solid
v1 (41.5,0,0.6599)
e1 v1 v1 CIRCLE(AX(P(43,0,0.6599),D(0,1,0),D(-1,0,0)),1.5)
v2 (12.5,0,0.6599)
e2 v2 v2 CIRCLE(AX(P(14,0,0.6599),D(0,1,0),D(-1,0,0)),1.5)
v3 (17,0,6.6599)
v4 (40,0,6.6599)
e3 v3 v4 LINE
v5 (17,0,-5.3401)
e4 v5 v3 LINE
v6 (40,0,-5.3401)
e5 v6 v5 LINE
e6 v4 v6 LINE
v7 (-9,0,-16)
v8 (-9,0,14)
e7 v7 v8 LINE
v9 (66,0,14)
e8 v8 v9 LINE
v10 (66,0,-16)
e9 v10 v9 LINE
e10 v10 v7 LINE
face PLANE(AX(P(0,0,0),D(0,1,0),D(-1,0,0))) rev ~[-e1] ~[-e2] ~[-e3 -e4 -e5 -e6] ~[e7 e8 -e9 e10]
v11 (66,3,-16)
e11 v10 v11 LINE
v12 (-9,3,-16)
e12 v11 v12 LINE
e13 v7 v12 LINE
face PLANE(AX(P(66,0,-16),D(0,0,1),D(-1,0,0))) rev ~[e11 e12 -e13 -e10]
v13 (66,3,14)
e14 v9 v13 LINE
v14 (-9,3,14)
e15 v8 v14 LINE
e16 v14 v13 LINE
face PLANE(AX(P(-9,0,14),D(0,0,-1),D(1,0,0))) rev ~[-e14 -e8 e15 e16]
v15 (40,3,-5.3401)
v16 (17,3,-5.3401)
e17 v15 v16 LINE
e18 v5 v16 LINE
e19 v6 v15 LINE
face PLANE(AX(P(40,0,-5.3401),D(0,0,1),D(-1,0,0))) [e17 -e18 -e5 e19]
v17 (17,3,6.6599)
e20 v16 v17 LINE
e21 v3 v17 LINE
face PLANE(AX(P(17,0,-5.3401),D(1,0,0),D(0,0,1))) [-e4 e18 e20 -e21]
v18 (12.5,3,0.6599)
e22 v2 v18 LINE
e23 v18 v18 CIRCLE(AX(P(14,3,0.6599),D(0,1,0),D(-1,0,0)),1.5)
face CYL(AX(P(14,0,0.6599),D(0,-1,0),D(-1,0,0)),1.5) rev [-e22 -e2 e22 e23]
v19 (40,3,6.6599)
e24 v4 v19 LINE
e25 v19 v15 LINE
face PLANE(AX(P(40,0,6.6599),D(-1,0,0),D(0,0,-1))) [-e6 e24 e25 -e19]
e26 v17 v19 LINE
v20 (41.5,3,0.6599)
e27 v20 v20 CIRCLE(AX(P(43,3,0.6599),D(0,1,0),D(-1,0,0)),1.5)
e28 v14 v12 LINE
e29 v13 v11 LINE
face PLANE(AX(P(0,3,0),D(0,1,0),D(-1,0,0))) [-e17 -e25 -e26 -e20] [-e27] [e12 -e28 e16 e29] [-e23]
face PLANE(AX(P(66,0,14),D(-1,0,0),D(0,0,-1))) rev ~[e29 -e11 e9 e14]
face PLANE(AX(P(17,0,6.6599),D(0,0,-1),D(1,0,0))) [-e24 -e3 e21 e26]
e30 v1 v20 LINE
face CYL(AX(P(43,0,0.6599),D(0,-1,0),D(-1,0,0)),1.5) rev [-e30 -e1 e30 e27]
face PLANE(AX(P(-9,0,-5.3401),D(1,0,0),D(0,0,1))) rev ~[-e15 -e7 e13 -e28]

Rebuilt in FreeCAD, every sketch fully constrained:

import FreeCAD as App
import Part
import Sketcher

doc = App.newDocument("Part")
body = doc.addObject("PartDesign::Body", "Body")

sketch1 = doc.addObject("Sketcher::SketchObject", "Sketch")
body.addObject(sketch1)
sketch1.AttachmentSupport = (doc.XZ_Plane, [""])
sketch1.MapMode = "FlatFace"
sketch1.addGeometry([
    Part.LineSegment(App.Vector(-9, 14, 0), App.Vector(66, 14, 0)),
    Part.LineSegment(App.Vector(66, 14, 0), App.Vector(66, -16, 0)),
    Part.LineSegment(App.Vector(66, -16, 0), App.Vector(-9, -16, 0)),
    Part.LineSegment(App.Vector(-9, -16, 0), App.Vector(-9, 14, 0)),
    Part.LineSegment(App.Vector(17, 6.7, 0), App.Vector(17, -5.3, 0)),
    Part.LineSegment(App.Vector(17, -5.3, 0), App.Vector(40, -5.3, 0)),
    Part.LineSegment(App.Vector(40, -5.3, 0), App.Vector(40, 6.7, 0)),
    Part.LineSegment(App.Vector(40, 6.7, 0), App.Vector(17, 6.7, 0)),
    Part.Circle(App.Vector(43, 0.7, 0), App.Vector(0, 0, 1), 1.5),
    Part.Circle(App.Vector(14, 0.7, 0), App.Vector(0, 0, 1), 1.5),
], False)
sketch1.addConstraint([
    Sketcher.Constraint("Coincident", 0, 2, 1, 1),
    Sketcher.Constraint("Coincident", 1, 2, 2, 1),
    Sketcher.Constraint("Coincident", 2, 2, 3, 1),
    Sketcher.Constraint("Coincident", 3, 2, 0, 1),
    Sketcher.Constraint("Coincident", 4, 2, 5, 1),
    Sketcher.Constraint("Coincident", 5, 2, 6, 1),
    Sketcher.Constraint("Coincident", 6, 2, 7, 1),
    Sketcher.Constraint("Coincident", 7, 2, 4, 1),
    Sketcher.Constraint("Horizontal", 0),
    Sketcher.Constraint("Vertical", 1),
    Sketcher.Constraint("Horizontal", 2),
    Sketcher.Constraint("Vertical", 3),
    Sketcher.Constraint("Vertical", 4),
    Sketcher.Constraint("Horizontal", 5),
    Sketcher.Constraint("Vertical", 6),
    Sketcher.Constraint("Horizontal", 7),
    Sketcher.Constraint("Equal", 8, 9),
    Sketcher.Constraint("Horizontal", 8, 3, 9, 3),
    Sketcher.Constraint("Diameter", 8, 3.0),
    Sketcher.Constraint("DistanceX", 0, 1, 0, 2, 75.0),
    Sketcher.Constraint("DistanceX", 5, 1, 5, 2, 23.0),
    Sketcher.Constraint("DistanceY", 1, 2, 1, 1, 30.0),
    Sketcher.Constraint("DistanceY", 4, 2, 4, 1, 12.0),
    Sketcher.Constraint("DistanceX", 8, 3, 0, 2, 23.0),
    Sketcher.Constraint("DistanceX", 2, 2, 9, 3, 23.0),
    Sketcher.Constraint("DistanceX", 9, 3, 4, 2, 3.0),
    Sketcher.Constraint("DistanceY", 4, 2, 9, 3, 6.0),
    Sketcher.Constraint("DistanceX", -1, 1, 8, 3, 43.0),
    Sketcher.Constraint("DistanceY", -1, 1, 0, 2, 14.0),
    Sketcher.Constraint("DistanceY", -1, 1, 8, 3, 0.66),
])
pad1 = doc.addObject("PartDesign::Pad", "Pad")
body.addObject(pad1)
pad1.Profile = sketch1
pad1.Length = 3
pad1.Reversed = True

doc.recompute()
